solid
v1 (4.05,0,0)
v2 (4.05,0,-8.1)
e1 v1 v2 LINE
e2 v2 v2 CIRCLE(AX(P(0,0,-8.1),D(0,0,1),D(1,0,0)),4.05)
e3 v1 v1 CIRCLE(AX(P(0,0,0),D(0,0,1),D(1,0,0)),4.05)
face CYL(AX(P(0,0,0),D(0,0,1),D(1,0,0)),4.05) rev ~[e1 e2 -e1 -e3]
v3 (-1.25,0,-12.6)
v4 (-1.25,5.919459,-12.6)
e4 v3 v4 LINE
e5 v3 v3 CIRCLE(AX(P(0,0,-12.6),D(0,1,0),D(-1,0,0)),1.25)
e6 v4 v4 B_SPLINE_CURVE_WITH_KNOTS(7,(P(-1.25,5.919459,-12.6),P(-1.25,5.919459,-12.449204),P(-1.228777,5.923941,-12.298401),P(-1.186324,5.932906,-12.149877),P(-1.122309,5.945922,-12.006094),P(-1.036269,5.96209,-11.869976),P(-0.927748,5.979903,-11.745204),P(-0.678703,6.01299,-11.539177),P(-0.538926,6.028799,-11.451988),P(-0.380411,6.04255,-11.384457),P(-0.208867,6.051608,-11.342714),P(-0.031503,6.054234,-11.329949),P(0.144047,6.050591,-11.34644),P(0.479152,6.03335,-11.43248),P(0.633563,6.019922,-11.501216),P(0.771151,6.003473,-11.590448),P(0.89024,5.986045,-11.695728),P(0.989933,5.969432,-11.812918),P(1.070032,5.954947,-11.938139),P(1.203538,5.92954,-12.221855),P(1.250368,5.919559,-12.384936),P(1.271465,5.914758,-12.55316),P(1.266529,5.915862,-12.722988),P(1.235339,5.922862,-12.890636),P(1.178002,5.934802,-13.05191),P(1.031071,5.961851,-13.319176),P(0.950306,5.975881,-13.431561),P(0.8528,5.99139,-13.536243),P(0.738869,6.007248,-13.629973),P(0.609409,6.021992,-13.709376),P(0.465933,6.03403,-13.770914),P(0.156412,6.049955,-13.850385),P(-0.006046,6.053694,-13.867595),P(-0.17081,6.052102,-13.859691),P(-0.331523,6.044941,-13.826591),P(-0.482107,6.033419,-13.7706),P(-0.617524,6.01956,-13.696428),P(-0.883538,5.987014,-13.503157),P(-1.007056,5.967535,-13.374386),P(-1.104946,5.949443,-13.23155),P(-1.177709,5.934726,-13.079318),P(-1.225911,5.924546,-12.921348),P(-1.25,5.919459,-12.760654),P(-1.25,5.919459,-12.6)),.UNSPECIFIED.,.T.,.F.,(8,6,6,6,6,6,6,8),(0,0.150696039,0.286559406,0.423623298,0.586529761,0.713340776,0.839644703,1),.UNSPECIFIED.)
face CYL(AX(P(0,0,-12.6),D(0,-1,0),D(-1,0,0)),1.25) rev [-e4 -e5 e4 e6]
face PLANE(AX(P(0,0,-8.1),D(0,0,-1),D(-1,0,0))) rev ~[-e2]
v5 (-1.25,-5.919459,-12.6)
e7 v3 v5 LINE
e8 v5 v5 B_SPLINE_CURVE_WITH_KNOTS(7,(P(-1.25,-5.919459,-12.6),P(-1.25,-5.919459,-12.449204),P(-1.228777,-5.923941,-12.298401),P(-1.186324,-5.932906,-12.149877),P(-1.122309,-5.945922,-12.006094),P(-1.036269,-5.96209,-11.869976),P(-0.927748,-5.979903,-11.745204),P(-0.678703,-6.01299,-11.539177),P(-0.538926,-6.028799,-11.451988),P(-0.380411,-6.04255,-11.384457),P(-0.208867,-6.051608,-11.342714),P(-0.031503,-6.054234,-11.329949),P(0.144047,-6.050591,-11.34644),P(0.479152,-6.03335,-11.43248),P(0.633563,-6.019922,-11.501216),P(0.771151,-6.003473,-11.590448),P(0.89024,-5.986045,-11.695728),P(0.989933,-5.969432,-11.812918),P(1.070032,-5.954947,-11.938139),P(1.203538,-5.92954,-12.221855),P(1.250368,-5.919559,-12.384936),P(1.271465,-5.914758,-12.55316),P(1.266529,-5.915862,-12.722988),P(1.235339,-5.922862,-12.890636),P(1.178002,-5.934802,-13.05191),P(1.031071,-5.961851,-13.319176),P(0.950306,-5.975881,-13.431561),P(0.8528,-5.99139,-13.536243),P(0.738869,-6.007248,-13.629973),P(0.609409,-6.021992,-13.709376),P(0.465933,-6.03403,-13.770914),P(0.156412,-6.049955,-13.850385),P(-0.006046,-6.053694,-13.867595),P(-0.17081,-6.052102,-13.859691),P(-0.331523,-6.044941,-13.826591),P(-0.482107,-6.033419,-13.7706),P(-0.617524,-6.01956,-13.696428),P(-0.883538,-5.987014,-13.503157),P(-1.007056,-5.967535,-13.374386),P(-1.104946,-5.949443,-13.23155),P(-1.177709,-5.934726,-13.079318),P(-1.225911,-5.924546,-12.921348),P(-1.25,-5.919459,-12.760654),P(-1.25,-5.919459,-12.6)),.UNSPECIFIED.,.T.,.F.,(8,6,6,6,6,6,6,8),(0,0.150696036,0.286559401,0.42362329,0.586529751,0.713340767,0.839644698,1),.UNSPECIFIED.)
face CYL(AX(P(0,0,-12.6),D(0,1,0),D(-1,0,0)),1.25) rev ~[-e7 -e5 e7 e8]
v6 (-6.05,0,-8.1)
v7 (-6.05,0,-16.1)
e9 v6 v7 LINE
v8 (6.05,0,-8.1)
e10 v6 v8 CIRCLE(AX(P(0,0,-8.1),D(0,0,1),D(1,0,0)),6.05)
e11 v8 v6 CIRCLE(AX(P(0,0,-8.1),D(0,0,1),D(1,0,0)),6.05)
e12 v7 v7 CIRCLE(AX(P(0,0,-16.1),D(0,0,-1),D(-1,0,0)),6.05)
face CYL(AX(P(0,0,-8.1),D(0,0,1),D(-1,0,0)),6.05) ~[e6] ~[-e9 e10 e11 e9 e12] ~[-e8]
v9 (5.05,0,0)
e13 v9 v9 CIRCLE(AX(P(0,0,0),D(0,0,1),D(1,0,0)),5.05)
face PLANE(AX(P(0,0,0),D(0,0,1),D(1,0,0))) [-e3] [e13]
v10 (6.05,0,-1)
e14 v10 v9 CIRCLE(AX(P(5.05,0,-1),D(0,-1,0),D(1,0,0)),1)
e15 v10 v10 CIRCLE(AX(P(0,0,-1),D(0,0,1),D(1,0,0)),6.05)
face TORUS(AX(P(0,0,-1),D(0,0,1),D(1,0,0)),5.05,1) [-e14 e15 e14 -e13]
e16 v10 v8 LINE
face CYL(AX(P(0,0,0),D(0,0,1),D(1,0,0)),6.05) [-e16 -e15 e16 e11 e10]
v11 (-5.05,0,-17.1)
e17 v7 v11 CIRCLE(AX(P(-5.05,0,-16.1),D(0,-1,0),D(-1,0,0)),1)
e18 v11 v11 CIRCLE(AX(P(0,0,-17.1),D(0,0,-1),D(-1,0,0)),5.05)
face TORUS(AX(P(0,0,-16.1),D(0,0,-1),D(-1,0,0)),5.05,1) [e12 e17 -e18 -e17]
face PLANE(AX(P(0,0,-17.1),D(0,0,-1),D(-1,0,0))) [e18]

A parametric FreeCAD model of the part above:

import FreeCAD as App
import Part
import Sketcher

V = App.Vector
Q = App.Units.Quantity


def edges_at(feature, points):
    """Names of the edges that pass closest to the given points."""
    edges = feature.Shape.Edges
    near = lambda p: min(range(len(edges)), key=lambda i: edges[i].distToShape(Part.Vertex(*p))[0])
    return sorted({f"Edge{near(p) + 1}" for p in points})

doc = App.newDocument("Part")
body = doc.addObject("PartDesign::Body", "Body")

# Sketch on XY plane
sketch1 = body.newObject("Sketcher::SketchObject", "Sketch")
sketch1.AttachmentSupport = (doc.getObject("XY_Plane"), [""])
sketch1.MapMode = "FlatFace"
sketch1.addGeometry([
    Part.Circle(V(0, 0, 0), V(0, 0, 1), 6),
    Part.Circle(V(0, 0, 0), V(0, 0, 1), 4),
], False)
sketch1.addConstraint([
    Sketcher.Constraint("Coincident", 0, 3, -1, 1),
    Sketcher.Constraint("Coincident", 1, 3, -1, 1),
    Sketcher.Constraint("Diameter", 1, Q("8.1 mm")),
    Sketcher.Constraint("Diameter", 0, Q("12.1 mm")),
])
pad1 = body.newObject("PartDesign::Pad", "Pad")
pad1.Profile = sketch1
pad1.Length = 8.1
pad1.Reversed = True

# Sketch on XY plane
sketch2 = body.newObject("Sketcher::SketchObject", "Sketch001")
sketch2.AttachmentSupport = (doc.getObject("XY_Plane"), [""])
sketch2.MapMode = "FlatFace"
sketch2.AttachmentOffset = App.Placement(V(0, 0, -8.1), App.Rotation())
sketch2.addGeometry(Part.Circle(V(0, 0, 0), V(0, 0, 1), 6), False)
sketch2.addConstraint([
    Sketcher.Constraint("Coincident", 0, 3, -1, 1),
    Sketcher.Constraint("Diameter", 0, Q("12.1 mm")),
])
pad2 = body.newObject("PartDesign::Pad", "Pad001")
pad2.Profile = sketch2
pad2.Length = 9
pad2.Reversed = True

# Sketch on XZ plane
sketch3 = body.newObject("Sketcher::SketchObject", "Sketch002")
sketch3.AttachmentSupport = (doc.getObject("XZ_Plane"), [""])
sketch3.MapMode = "FlatFace"
sketch3.addGeometry(Part.Circle(V(0, -12.6, 0), V(0, 0, 1), 1.2), False)
sketch3.addConstraint([
    Sketcher.Constraint("PointOnObject", 0, 3, -2),
    Sketcher.Constraint("Diameter", 0, Q("2.5 mm")),
    Sketcher.Constraint("DistanceY", 0, 3, -1, 1, Q("12.6 mm")),
])
pocket1 = body.newObject("PartDesign::Pocket", "Pocket")
pocket1.Profile = sketch3
pocket1.Type = "ThroughAll"
pocket1.Midplane = True
doc.recompute()

fillet = body.newObject("PartDesign::Fillet", "Fillet")
fillet.Base = (pocket1, edges_at(pocket1, [(6.05, 0, -17.1), (-6.05, 0, 0)]))
fillet.Radius = 1

doc.recompute()
